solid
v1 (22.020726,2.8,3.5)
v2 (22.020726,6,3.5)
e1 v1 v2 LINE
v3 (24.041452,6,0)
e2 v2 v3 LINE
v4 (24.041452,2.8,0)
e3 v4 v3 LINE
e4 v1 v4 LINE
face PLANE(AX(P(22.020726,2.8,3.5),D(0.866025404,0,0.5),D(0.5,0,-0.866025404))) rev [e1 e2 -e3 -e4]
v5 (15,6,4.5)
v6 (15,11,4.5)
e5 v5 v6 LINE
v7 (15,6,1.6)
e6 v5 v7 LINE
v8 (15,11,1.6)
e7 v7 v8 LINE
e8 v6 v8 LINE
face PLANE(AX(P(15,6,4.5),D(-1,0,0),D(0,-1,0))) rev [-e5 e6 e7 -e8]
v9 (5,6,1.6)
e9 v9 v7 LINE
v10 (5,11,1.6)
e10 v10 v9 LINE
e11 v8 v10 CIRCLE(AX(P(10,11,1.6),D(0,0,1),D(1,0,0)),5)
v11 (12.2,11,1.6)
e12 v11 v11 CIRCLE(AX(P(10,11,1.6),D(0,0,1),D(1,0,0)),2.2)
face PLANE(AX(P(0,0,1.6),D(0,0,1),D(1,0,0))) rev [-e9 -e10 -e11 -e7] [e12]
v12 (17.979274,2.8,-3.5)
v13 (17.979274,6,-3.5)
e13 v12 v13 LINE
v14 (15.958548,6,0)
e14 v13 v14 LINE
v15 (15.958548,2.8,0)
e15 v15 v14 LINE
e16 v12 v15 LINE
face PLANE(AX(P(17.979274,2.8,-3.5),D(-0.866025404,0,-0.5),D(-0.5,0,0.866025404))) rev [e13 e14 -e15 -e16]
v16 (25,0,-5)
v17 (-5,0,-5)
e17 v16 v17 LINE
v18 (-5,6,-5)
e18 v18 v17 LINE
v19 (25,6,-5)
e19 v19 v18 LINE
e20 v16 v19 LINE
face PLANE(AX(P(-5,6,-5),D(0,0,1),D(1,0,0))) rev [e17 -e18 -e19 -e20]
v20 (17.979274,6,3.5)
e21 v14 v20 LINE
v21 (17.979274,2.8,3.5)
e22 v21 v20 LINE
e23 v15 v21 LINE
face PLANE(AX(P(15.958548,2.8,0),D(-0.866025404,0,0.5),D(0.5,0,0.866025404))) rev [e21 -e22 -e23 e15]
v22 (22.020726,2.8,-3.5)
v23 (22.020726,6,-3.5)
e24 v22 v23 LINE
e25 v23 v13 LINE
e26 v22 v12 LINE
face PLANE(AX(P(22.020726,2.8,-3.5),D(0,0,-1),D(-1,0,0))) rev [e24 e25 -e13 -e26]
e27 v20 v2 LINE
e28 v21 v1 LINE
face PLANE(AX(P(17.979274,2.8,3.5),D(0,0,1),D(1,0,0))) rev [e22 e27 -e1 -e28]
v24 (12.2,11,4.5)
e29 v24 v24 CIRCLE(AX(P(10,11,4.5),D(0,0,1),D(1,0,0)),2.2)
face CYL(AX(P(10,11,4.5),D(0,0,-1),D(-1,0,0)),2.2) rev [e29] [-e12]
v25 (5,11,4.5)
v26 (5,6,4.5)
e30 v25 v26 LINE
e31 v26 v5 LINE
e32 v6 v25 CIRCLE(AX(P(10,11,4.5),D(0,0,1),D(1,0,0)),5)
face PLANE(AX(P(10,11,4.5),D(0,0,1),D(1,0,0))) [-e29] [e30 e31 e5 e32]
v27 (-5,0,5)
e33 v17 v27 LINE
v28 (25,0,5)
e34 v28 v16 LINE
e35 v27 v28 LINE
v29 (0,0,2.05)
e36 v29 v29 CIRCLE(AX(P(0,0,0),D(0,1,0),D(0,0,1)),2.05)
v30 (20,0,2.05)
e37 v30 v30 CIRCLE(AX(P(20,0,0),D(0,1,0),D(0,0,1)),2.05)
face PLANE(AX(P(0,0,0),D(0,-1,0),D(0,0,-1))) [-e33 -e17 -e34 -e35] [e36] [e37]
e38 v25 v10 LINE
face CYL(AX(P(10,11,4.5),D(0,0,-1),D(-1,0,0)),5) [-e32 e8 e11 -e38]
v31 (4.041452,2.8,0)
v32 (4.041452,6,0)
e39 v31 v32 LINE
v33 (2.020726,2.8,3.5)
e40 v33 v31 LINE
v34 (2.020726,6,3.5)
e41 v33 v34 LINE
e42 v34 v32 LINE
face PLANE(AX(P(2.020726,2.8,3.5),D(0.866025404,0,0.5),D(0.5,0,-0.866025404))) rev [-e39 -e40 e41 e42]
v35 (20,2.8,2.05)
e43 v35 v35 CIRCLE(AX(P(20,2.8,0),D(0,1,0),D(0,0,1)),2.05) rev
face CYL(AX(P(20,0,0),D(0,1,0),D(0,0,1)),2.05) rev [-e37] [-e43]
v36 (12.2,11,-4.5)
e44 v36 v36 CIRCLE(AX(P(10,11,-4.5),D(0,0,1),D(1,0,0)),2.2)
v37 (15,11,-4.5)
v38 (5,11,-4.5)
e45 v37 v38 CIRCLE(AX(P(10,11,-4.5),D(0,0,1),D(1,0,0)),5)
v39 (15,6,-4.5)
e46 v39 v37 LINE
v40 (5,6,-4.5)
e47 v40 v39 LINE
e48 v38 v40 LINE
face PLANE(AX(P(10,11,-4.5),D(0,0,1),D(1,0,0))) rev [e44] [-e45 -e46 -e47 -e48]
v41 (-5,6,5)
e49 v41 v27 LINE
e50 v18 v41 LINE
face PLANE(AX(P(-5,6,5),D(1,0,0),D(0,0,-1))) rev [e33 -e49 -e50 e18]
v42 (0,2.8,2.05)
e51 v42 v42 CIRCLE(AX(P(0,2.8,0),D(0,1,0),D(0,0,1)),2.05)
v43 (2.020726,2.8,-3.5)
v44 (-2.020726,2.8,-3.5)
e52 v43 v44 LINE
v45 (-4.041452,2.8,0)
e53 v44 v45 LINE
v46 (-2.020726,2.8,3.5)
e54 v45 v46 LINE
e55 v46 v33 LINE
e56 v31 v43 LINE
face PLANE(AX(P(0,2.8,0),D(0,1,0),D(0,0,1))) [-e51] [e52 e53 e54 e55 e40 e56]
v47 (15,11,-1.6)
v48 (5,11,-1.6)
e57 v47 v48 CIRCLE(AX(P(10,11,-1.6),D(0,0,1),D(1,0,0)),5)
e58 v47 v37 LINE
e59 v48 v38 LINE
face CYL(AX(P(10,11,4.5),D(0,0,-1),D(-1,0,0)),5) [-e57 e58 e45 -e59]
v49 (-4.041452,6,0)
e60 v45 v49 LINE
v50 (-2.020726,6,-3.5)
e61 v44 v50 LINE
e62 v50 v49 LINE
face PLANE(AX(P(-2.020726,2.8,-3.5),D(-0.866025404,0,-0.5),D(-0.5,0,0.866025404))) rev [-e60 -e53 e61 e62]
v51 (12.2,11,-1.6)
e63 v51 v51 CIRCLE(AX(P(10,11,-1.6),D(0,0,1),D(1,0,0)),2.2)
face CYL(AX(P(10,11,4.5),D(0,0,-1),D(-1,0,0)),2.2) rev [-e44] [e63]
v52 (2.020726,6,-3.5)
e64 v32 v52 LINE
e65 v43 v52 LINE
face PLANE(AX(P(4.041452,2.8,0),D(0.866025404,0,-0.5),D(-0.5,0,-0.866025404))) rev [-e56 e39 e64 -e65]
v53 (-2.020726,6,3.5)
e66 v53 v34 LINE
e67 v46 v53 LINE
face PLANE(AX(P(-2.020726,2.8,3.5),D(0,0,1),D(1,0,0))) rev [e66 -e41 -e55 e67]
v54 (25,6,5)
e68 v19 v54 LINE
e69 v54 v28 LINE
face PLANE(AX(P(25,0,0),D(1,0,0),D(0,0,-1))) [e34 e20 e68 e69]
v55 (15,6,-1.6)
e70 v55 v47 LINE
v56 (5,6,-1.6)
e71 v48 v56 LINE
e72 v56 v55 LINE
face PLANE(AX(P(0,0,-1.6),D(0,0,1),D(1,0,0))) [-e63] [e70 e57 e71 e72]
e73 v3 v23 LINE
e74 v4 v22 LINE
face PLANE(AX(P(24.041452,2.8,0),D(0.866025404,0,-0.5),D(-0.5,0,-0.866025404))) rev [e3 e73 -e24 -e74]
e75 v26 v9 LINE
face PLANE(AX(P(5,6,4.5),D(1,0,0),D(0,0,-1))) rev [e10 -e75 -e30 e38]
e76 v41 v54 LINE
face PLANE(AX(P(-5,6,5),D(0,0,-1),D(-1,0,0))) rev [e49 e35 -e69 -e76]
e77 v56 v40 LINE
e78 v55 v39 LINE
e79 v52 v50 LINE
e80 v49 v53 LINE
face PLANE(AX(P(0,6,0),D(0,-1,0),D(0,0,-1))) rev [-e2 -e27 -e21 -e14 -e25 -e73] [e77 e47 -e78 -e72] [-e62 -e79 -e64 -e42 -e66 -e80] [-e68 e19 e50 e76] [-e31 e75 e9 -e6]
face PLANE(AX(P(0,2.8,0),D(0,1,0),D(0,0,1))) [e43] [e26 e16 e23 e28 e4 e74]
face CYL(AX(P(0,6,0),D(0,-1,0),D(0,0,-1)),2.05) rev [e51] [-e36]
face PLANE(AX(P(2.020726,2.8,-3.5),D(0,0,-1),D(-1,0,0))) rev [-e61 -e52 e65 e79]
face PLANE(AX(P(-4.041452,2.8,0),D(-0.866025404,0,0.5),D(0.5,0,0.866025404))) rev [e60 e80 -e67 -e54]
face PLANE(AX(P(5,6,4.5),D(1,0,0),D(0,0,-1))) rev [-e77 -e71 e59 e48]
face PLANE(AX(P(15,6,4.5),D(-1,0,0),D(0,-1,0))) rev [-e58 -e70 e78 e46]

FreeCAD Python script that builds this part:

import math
import FreeCAD as App
import Part
import Sketcher
from FreeCAD import Vector
Q = App.Units.Quantity

doc = App.newDocument("Part")
body = doc.addObject("PartDesign::Body", "Body")

sketch1 = body.newObject("Sketcher::SketchObject", "Sketch")
sketch1.AttachmentSupport = (doc.getObject("XZ_Plane"), [""])
sketch1.MapMode = "FlatFace"
sketch1.addGeometry([
    Part.LineSegment(Vector(-5, -5, 0), Vector(-5, 5, 0)),
    Part.LineSegment(Vector(-5, 5, 0), Vector(5, 5, 0)),
    Part.LineSegment(Vector(5, 5, 0), Vector(5, -5, 0)),
    Part.LineSegment(Vector(5, -5, 0), Vector(-5, -5, 0)),
    Part.Circle(Vector(0, 0, 0), Vector(0, 0, 1), 2),
], False)
sketch1.addConstraint([
    Sketcher.Constraint("Coincident", 0, 2, 1, 1),
    Sketcher.Constraint("Coincident", 1, 2, 2, 1),
    Sketcher.Constraint("Coincident", 2, 2, 3, 1),
    Sketcher.Constraint("Coincident", 3, 2, 0, 1),
    Sketcher.Constraint("Vertical", 0),
    Sketcher.Constraint("Horizontal", 1),
    Sketcher.Constraint("Vertical", 2),
    Sketcher.Constraint("Horizontal", 3),
    Sketcher.Constraint("Coincident", 4, 3, -1, 1),
    Sketcher.Constraint("Symmetric", 0, 2, 2, 2, -1, 1),
    Sketcher.Constraint("Equal", 3, 0),
    Sketcher.Constraint("Diameter", 4, 4.1),
    Sketcher.Constraint("DistanceX", 1, 1, 1, 2, 10.0),
])
pad1 = body.newObject("PartDesign::Pad", "Pad")
pad1.Profile = sketch1
pad1.Length = 6
pad1.Reversed = True

sketch2 = body.newObject("Sketcher::SketchObject", "Sketch001")
sketch2.AttachmentSupport = (doc.getObject("XZ_Plane"), [""])
sketch2.MapMode = "FlatFace"
sketch2.AttachmentOffset = App.Placement(Vector(0, 0, -6), App.Rotation())
sketch2.addGeometry([
    Part.LineSegment(Vector(4, 0, 0), Vector(2, -3.5, 0)),
    Part.LineSegment(Vector(2, -3.5, 0), Vector(-2, -3.5, 0)),
    Part.LineSegment(Vector(-2, -3.5, 0), Vector(-4, 0, 0)),
    Part.LineSegment(Vector(-4, 0, 0), Vector(-2, 3.5, 0)),
    Part.LineSegment(Vector(-2, 3.5, 0), Vector(2, 3.5, 0)),
    Part.LineSegment(Vector(2, 3.5, 0), Vector(4, 0, 0)),
], False)
sketch2.addConstraint([
    Sketcher.Constraint("Coincident", 0, 2, 1, 1),
    Sketcher.Constraint("Coincident", 1, 2, 2, 1),
    Sketcher.Constraint("Coincident", 2, 2, 3, 1),
    Sketcher.Constraint("Coincident", 3, 2, 4, 1),
    Sketcher.Constraint("Coincident", 4, 2, 5, 1),
    Sketcher.Constraint("Coincident", 5, 2, 0, 1),
    Sketcher.Constraint("Horizontal", 1),
    Sketcher.Constraint("Horizontal", 4),
    Sketcher.Constraint("Symmetric", 0, 2, 3, 2, -1, 1),
    Sketcher.Constraint("Symmetric", 2, 2, 5, 2, -1, 1),
    Sketcher.Constraint("PointOnObject", 2, 2, -1),
    Sketcher.Constraint("Parallel", 2, 5),
    Sketcher.Constraint("Vertical", 1, 2, 3, 2),
    Sketcher.Constraint("Angle", 0, Q("-120 deg")),
    Sketcher.Constraint("DistanceY", 1, 2, 3, 2, 7.0),
    Sketcher.Constraint("DistanceX", 1, 2, 1, 1, 4.041452),
])
pocket1 = body.newObject("PartDesign::Pocket", "Pocket")
pocket1.Profile = sketch2
pocket1.Length = 3.2
pocket1.Reversed = True

sketch3 = body.newObject("Sketcher::SketchObject", "Sketch002")
sketch3.AttachmentSupport = (doc.getObject("YZ_Plane"), [""])
sketch3.MapMode = "FlatFace"
sketch3.AttachmentOffset = App.Placement(Vector(0, 0, 5), App.Rotation())
sketch3.addGeometry([
    Part.LineSegment(Vector(6, 5, 0), Vector(0, 5, 0)),
    Part.LineSegment(Vector(0, 5, 0), Vector(0, -5, 0)),
    Part.LineSegment(Vector(0, -5, 0), Vector(6, -5, 0)),
    Part.LineSegment(Vector(6, -5, 0), Vector(6, 5, 0)),
], False)
sketch3.addConstraint([
    Sketcher.Constraint("Coincident", 0, 2, 1, 1),
    Sketcher.Constraint("Coincident", 1, 2, 2, 1),
    Sketcher.Constraint("Coincident", 2, 2, 3, 1),
    Sketcher.Constraint("Coincident", 3, 2, 0, 1),
    Sketcher.Constraint("Horizontal", 0),
    Sketcher.Constraint("Vertical", 1),
    Sketcher.Constraint("Horizontal", 2),
    Sketcher.Constraint("Vertical", 3),
    Sketcher.Constraint("Symmetric", 0, 2, 1, 2, -1, 1),
    Sketcher.Constraint("DistanceX", 0, 2, 0, 1, 6.0),
    Sketcher.Constraint("DistanceY", 1, 2, 1, 1, 10.0),
])
pad2 = body.newObject("PartDesign::Pad", "Pad001")
pad2.Profile = sketch3
pad2.Length = 20

sketch4 = body.newObject("Sketcher::SketchObject", "Sketch003")
sketch4.AttachmentSupport = (doc.getObject("XZ_Plane"), [""])
sketch4.MapMode = "FlatFace"
sketch4.AttachmentOffset = App.Placement(Vector(0, 0, -6), App.Rotation())
sketch4.addGeometry(Part.Circle(Vector(20, 0, 0), Vector(0, 0, 1), 2), False)
sketch4.addConstraint([
    Sketcher.Constraint("PointOnObject", 0, 3, -1),
    Sketcher.Constraint("Diameter", 0, 4.1),
    Sketcher.Constraint("DistanceX", -1, 1, 0, 3, 20.0),
])
pocket2 = body.newObject("PartDesign::Pocket", "Pocket001")
pocket2.Profile = sketch4
pocket2.Type = "ThroughAll"
pocket2.Reversed = True

sketch5 = body.newObject("Sketcher::SketchObject", "Sketch004")
sketch5.AttachmentSupport = (doc.getObject("XZ_Plane"), [""])
sketch5.MapMode = "FlatFace"
sketch5.AttachmentOffset = App.Placement(Vector(0, 0, -6), App.Rotation())
sketch5.addGeometry([
    Part.LineSegment(Vector(24, 0, 0), Vector(22, -3.5, 0)),
    Part.LineSegment(Vector(22, -3.5, 0), Vector(18, -3.5, 0)),
    Part.LineSegment(Vector(18, -3.5, 0), Vector(16, 0, 0)),
    Part.LineSegment(Vector(16, 0, 0), Vector(18, 3.5, 0)),
    Part.LineSegment(Vector(18, 3.5, 0), Vector(22, 3.5, 0)),
    Part.LineSegment(Vector(22, 3.5, 0), Vector(24, 0, 0)),
], False)
sketch5.addConstraint([
    Sketcher.Constraint("Coincident", 0, 2, 1, 1),
    Sketcher.Constraint("Coincident", 1, 2, 2, 1),
    Sketcher.Constraint("Coincident", 2, 2, 3, 1),
    Sketcher.Constraint("Coincident", 3, 2, 4, 1),
    Sketcher.Constraint("Coincident", 4, 2, 5, 1),
    Sketcher.Constraint("Coincident", 5, 2, 0, 1),
    Sketcher.Constraint("Horizontal", 1),
    Sketcher.Constraint("Horizontal", 4),
    Sketcher.Constraint("Symmetric", 1, 2, 3, 2, -1),
    Sketcher.Constraint("PointOnObject", 2, 2, -1),
    Sketcher.Constraint("PointOnObject", 5, 2, -1),
    Sketcher.Constraint("Parallel", 0, 3),
    Sketcher.Constraint("Parallel", 2, 5),
    Sketcher.Constraint("Angle", 0, Q("-120 deg")),
    Sketcher.Constraint("DistanceY", 1, 2, 3, 2, 7.0),
    Sketcher.Constraint("DistanceX", 1, 2, 1, 1, 4.041452),
    Sketcher.Constraint("DistanceX", -1, 1, 2, 2, 15.958548),
])
pocket3 = body.newObject("PartDesign::Pocket", "Pocket002")
pocket3.Profile = sketch5
pocket3.Length = 3.2
pocket3.Reversed = True

sketch6 = body.newObject("Sketcher::SketchObject", "Sketch005")
sketch6.AttachmentSupport = (doc.getObject("XY_Plane"), [""])
sketch6.MapMode = "FlatFace"
sketch6.addGeometry([
    Part.LineSegment(Vector(5, 11, 0), Vector(5, 6, 0)),
    Part.LineSegment(Vector(5, 6, 0), Vector(15, 6, 0)),
    Part.LineSegment(Vector(15, 6, 0), Vector(15, 11, 0)),
    Part.ArcOfCircle(Part.Circle(Vector(10, 11, 0), Vector(0, 0, 1), 5), math.radians(0), math.radians(180)),
    Part.Circle(Vector(10, 11, 0), Vector(0, 0, 1), 2.2),
], False)
sketch6.addConstraint([
    Sketcher.Constraint("Coincident", 0, 2, 1, 1),
    Sketcher.Constraint("Coincident", 1, 2, 2, 1),
    Sketcher.Constraint("Tangent", 2, 2, 3, 1),
    Sketcher.Constraint("Tangent", 3, 2, 0, 1),
    Sketcher.Constraint("Vertical", 0),
    Sketcher.Constraint("Horizontal", 1),
    Sketcher.Constraint("Vertical", 2),
    Sketcher.Constraint("Coincident", 4, 3, 3, 3),
    Sketcher.Constraint("Radius", 3, 5.0),
    Sketcher.Constraint("Diameter", 4, 4.4),
    Sketcher.Constraint("DistanceY", 0, 2, 0, 1, 5.0),
    Sketcher.Constraint("DistanceX", -1, 1, 3, 3, 10.0),
    Sketcher.Constraint("DistanceY", -1, 1, 3, 3, 11.0),
])
pad3 = body.newObject("PartDesign::Pad", "Pad002")
pad3.Profile = sketch6
pad3.Length = 9
pad3.Midplane = True

sketch7 = body.newObject("Sketcher::SketchObject", "Sketch006")
sketch7.AttachmentSupport = (doc.getObject("XY_Plane"), [""])
sketch7.MapMode = "FlatFace"
sketch7.addGeometry([
    Part.LineSegment(Vector(3, 18, 0), Vector(3, 6, 0)),
    Part.LineSegment(Vector(3, 6, 0), Vector(20, 6, 0)),
    Part.LineSegment(Vector(20, 6, 0), Vector(20, 18, 0)),
    Part.LineSegment(Vector(20, 18, 0), Vector(3, 18, 0)),
], False)
sketch7.addConstraint([
    Sketcher.Constraint("Coincident", 0, 2, 1, 1),
    Sketcher.Constraint("Coincident", 1, 2, 2, 1),
    Sketcher.Constraint("Coincident", 2, 2, 3, 1),
    Sketcher.Constraint("Coincident", 3, 2, 0, 1),
    Sketcher.Constraint("Vertical", 0),
    Sketcher.Constraint("Horizontal", 1),
    Sketcher.Constraint("Vertical", 2),
    Sketcher.Constraint("Horizontal", 3),
    Sketcher.Constraint("DistanceY", -1, 1, 0, 2, 6.0),
    Sketcher.Constraint("DistanceX", 1, 1, 1, 2, 17.254554),
    Sketcher.Constraint("DistanceY", 0, 2, 0, 1, 12.252833),
    Sketcher.Constraint("DistanceX", -1, 1, 0, 2, 2.814643),
])
pocket4 = body.newObject("PartDesign::Pocket", "Pocket003")
pocket4.Profile = sketch7
pocket4.Length = 3.2
pocket4.Midplane = True

doc.recompute()
